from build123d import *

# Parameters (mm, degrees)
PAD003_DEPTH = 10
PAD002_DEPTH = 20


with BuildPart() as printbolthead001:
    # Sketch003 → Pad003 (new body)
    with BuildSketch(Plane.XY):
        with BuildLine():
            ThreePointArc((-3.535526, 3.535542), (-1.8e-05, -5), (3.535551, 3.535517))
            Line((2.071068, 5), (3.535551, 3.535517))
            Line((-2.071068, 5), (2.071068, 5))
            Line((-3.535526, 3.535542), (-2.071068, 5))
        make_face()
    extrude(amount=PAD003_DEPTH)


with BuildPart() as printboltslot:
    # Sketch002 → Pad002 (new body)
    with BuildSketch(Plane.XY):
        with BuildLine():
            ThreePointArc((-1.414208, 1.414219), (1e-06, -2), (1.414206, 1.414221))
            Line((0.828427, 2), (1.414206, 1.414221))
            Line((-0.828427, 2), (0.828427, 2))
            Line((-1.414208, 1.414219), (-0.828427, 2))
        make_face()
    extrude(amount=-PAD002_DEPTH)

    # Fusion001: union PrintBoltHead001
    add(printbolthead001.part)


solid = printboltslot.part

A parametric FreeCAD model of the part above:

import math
import FreeCAD as App
import Part
import Sketcher

V = App.Vector
Q = App.Units.Quantity

doc = App.newDocument("Part")
body = doc.addObject("PartDesign::Body", "Body")

# Sketch on XY plane
sketch1 = body.newObject("Sketcher::SketchObject", "Sketch")
sketch1.AttachmentSupport = (doc.getObject("XY_Plane"), [""])
sketch1.MapMode = "FlatFace"
sketch1.addGeometry(Part.ArcOfCircle(Part.Circle(V(0, 0, 0), V(0, 0, 1), 5), math.radians(134.999871), math.radians(404.999724)), False)
sketch1.addGeometry(Part.LineSegment(V(3.535551, 3.535517, 0), V(2.071068, 5, 0)), False)
sketch1.addGeometry(Part.LineSegment(V(2.071068, 5, 0), V(-2.071068, 5, 0)), False)
sketch1.addGeometry(Part.LineSegment(V(-2.071068, 5, 0), V(-3.535526, 3.535542, 0)), False)
sketch1.addConstraint(Sketcher.Constraint("Coincident", 0, 2, 1, 1))
sketch1.addConstraint(Sketcher.Constraint("Coincident", 1, 2, 2, 1))
sketch1.addConstraint(Sketcher.Constraint("Coincident", 2, 2, 3, 1))
sketch1.addConstraint(Sketcher.Constraint("Coincident", 3, 2, 0, 1))
sketch1.addConstraint(Sketcher.Constraint("Horizontal", 2))
sketch1.addConstraint(Sketcher.Constraint("Coincident", 0, 3, -1, 1))
sketch1.addConstraint(Sketcher.Constraint("Perpendicular", 1, 3))
sketch1.addConstraint(Sketcher.Constraint("Radius", 0, Q("5 mm")))
sketch1.addConstraint(Sketcher.Constraint("Angle", 1, Q("135 deg")))
sketch1.addConstraint(Sketcher.Constraint("DistanceY", -1, 1, 1, 2, Q("5 mm")))
sketch1.addConstraint(Sketcher.Constraint("Distance", 1, Q("2.071092 mm")))
sketch1.addConstraint(Sketcher.Constraint("DistanceY", -1, 1, 3, 2, Q("3.535542 mm")))
pad1 = body.newObject("PartDesign::Pad", "Pad")
pad1.Profile = sketch1
pad1.Length = 10
body2 = doc.addObject("PartDesign::Body", "Body001")

# Sketch on XY plane
sketch2 = body2.newObject("Sketcher::SketchObject", "Sketch001")
sketch2.AttachmentSupport = (doc.getObject("XY_Plane001"), [""])
sketch2.MapMode = "FlatFace"
sketch2.addGeometry(Part.ArcOfCircle(Part.Circle(V(0, 0, 0), V(0, 0, 1), 2), math.radians(134.999776), math.radians(405.000305)), False)
sketch2.addGeometry(Part.LineSegment(V(1.414206, 1.414221, 0), V(0.828427, 2, 0)), False)
sketch2.addGeometry(Part.LineSegment(V(0.828427, 2, 0), V(-0.828427, 2, 0)), False)
sketch2.addGeometry(Part.LineSegment(V(-0.828427, 2, 0), V(-1.414208, 1.414219, 0)), False)
sketch2.addConstraint(Sketcher.Constraint("Coincident", 0, 2, 1, 1))
sketch2.addConstraint(Sketcher.Constraint("Coincident", 1, 2, 2, 1))
sketch2.addConstraint(Sketcher.Constraint("Coincident", 2, 2, 3, 1))
sketch2.addConstraint(Sketcher.Constraint("Coincident", 3, 2, 0, 1))
sketch2.addConstraint(Sketcher.Constraint("Horizontal", 2))
sketch2.addConstraint(Sketcher.Constraint("Coincident", 0, 3, -1, 1))
sketch2.addConstraint(Sketcher.Constraint("Perpendicular", 1, 3))
sketch2.addConstraint(Sketcher.Constraint("Horizontal", 0, 2, 3, 2))
sketch2.addConstraint(Sketcher.Constraint("Radius", 0, Q("2 mm")))
sketch2.addConstraint(Sketcher.Constraint("Angle", 1, Q("135 deg")))
sketch2.addConstraint(Sketcher.Constraint("DistanceY", -1, 1, 1, 2, Q("2 mm")))
sketch2.addConstraint(Sketcher.Constraint("Distance", 3, Q("0.828419 mm")))
pad2 = body2.newObject("PartDesign::Pad", "Pad001")
pad2.Profile = sketch2
pad2.Length = 20
pad2.Reversed = True
doc.recompute()

boolean = body2.newObject("PartDesign::Boolean", "Boolean")
boolean.Type = "Fuse"
boolean.addObjects([body])

doc.recompute()
